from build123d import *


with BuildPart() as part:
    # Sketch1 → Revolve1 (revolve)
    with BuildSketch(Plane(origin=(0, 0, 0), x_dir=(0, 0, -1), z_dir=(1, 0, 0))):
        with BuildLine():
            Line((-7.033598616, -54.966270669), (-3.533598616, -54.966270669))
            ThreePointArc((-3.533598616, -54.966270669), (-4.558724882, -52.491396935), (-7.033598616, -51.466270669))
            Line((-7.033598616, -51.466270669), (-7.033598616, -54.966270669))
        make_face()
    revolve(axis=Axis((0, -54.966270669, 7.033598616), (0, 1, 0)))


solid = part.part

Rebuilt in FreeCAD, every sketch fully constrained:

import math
import FreeCAD as App
import Part
import Sketcher
from FreeCAD import Vector

doc = App.newDocument("Part")
body = doc.addObject("PartDesign::Body", "Body")

sketch1 = body.newObject("Sketcher::SketchObject", "Sketch")
sketch1.AttachmentSupport = (doc.getObject("YZ_Plane"), [""])
sketch1.MapMode = "FlatFace"
sketch1.addGeometry([
    Part.LineSegment(Vector(-55, 7, 0), Vector(-55, 3.5, 0)),
    Part.ArcOfCircle(Part.Circle(Vector(-55, 7, 0), Vector(0, 0, 1), 3.5), math.radians(-90), math.radians(0)),
    Part.LineSegment(Vector(-51.5, 7, 0), Vector(-55, 7, 0)),
], False)
sketch1.addGeometry(Part.LineSegment(Vector(-55, 7, 0), Vector(-51.5, 7, 0)), True)
sketch1.addConstraint([
    Sketcher.Constraint("Coincident", 0, 2, 1, 1),
    Sketcher.Constraint("Coincident", 1, 2, 2, 1),
    Sketcher.Constraint("Coincident", 2, 2, 0, 1),
    Sketcher.Constraint("Vertical", 0),
    Sketcher.Constraint("Horizontal", 2),
    Sketcher.Constraint("Horizontal", 3),
    Sketcher.Constraint("Coincident", 2, 2, 1, 3),
    Sketcher.Constraint("Coincident", 3, 1, 1, 3),
    Sketcher.Constraint("Equal", 2, 3),
    Sketcher.Constraint("Radius", 1, 3.5),
    Sketcher.Constraint("DistanceY", -1, 1, 1, 3, 7.033599),
    Sketcher.Constraint("DistanceX", 1, 3, -1, 1, 54.966271),
])
revolution = body.newObject("PartDesign::Revolution", "Revolution")
revolution.Profile = sketch1
revolution.ReferenceAxis = (sketch1, ["Axis0"])
revolution.Angle = 360

doc.recompute()
